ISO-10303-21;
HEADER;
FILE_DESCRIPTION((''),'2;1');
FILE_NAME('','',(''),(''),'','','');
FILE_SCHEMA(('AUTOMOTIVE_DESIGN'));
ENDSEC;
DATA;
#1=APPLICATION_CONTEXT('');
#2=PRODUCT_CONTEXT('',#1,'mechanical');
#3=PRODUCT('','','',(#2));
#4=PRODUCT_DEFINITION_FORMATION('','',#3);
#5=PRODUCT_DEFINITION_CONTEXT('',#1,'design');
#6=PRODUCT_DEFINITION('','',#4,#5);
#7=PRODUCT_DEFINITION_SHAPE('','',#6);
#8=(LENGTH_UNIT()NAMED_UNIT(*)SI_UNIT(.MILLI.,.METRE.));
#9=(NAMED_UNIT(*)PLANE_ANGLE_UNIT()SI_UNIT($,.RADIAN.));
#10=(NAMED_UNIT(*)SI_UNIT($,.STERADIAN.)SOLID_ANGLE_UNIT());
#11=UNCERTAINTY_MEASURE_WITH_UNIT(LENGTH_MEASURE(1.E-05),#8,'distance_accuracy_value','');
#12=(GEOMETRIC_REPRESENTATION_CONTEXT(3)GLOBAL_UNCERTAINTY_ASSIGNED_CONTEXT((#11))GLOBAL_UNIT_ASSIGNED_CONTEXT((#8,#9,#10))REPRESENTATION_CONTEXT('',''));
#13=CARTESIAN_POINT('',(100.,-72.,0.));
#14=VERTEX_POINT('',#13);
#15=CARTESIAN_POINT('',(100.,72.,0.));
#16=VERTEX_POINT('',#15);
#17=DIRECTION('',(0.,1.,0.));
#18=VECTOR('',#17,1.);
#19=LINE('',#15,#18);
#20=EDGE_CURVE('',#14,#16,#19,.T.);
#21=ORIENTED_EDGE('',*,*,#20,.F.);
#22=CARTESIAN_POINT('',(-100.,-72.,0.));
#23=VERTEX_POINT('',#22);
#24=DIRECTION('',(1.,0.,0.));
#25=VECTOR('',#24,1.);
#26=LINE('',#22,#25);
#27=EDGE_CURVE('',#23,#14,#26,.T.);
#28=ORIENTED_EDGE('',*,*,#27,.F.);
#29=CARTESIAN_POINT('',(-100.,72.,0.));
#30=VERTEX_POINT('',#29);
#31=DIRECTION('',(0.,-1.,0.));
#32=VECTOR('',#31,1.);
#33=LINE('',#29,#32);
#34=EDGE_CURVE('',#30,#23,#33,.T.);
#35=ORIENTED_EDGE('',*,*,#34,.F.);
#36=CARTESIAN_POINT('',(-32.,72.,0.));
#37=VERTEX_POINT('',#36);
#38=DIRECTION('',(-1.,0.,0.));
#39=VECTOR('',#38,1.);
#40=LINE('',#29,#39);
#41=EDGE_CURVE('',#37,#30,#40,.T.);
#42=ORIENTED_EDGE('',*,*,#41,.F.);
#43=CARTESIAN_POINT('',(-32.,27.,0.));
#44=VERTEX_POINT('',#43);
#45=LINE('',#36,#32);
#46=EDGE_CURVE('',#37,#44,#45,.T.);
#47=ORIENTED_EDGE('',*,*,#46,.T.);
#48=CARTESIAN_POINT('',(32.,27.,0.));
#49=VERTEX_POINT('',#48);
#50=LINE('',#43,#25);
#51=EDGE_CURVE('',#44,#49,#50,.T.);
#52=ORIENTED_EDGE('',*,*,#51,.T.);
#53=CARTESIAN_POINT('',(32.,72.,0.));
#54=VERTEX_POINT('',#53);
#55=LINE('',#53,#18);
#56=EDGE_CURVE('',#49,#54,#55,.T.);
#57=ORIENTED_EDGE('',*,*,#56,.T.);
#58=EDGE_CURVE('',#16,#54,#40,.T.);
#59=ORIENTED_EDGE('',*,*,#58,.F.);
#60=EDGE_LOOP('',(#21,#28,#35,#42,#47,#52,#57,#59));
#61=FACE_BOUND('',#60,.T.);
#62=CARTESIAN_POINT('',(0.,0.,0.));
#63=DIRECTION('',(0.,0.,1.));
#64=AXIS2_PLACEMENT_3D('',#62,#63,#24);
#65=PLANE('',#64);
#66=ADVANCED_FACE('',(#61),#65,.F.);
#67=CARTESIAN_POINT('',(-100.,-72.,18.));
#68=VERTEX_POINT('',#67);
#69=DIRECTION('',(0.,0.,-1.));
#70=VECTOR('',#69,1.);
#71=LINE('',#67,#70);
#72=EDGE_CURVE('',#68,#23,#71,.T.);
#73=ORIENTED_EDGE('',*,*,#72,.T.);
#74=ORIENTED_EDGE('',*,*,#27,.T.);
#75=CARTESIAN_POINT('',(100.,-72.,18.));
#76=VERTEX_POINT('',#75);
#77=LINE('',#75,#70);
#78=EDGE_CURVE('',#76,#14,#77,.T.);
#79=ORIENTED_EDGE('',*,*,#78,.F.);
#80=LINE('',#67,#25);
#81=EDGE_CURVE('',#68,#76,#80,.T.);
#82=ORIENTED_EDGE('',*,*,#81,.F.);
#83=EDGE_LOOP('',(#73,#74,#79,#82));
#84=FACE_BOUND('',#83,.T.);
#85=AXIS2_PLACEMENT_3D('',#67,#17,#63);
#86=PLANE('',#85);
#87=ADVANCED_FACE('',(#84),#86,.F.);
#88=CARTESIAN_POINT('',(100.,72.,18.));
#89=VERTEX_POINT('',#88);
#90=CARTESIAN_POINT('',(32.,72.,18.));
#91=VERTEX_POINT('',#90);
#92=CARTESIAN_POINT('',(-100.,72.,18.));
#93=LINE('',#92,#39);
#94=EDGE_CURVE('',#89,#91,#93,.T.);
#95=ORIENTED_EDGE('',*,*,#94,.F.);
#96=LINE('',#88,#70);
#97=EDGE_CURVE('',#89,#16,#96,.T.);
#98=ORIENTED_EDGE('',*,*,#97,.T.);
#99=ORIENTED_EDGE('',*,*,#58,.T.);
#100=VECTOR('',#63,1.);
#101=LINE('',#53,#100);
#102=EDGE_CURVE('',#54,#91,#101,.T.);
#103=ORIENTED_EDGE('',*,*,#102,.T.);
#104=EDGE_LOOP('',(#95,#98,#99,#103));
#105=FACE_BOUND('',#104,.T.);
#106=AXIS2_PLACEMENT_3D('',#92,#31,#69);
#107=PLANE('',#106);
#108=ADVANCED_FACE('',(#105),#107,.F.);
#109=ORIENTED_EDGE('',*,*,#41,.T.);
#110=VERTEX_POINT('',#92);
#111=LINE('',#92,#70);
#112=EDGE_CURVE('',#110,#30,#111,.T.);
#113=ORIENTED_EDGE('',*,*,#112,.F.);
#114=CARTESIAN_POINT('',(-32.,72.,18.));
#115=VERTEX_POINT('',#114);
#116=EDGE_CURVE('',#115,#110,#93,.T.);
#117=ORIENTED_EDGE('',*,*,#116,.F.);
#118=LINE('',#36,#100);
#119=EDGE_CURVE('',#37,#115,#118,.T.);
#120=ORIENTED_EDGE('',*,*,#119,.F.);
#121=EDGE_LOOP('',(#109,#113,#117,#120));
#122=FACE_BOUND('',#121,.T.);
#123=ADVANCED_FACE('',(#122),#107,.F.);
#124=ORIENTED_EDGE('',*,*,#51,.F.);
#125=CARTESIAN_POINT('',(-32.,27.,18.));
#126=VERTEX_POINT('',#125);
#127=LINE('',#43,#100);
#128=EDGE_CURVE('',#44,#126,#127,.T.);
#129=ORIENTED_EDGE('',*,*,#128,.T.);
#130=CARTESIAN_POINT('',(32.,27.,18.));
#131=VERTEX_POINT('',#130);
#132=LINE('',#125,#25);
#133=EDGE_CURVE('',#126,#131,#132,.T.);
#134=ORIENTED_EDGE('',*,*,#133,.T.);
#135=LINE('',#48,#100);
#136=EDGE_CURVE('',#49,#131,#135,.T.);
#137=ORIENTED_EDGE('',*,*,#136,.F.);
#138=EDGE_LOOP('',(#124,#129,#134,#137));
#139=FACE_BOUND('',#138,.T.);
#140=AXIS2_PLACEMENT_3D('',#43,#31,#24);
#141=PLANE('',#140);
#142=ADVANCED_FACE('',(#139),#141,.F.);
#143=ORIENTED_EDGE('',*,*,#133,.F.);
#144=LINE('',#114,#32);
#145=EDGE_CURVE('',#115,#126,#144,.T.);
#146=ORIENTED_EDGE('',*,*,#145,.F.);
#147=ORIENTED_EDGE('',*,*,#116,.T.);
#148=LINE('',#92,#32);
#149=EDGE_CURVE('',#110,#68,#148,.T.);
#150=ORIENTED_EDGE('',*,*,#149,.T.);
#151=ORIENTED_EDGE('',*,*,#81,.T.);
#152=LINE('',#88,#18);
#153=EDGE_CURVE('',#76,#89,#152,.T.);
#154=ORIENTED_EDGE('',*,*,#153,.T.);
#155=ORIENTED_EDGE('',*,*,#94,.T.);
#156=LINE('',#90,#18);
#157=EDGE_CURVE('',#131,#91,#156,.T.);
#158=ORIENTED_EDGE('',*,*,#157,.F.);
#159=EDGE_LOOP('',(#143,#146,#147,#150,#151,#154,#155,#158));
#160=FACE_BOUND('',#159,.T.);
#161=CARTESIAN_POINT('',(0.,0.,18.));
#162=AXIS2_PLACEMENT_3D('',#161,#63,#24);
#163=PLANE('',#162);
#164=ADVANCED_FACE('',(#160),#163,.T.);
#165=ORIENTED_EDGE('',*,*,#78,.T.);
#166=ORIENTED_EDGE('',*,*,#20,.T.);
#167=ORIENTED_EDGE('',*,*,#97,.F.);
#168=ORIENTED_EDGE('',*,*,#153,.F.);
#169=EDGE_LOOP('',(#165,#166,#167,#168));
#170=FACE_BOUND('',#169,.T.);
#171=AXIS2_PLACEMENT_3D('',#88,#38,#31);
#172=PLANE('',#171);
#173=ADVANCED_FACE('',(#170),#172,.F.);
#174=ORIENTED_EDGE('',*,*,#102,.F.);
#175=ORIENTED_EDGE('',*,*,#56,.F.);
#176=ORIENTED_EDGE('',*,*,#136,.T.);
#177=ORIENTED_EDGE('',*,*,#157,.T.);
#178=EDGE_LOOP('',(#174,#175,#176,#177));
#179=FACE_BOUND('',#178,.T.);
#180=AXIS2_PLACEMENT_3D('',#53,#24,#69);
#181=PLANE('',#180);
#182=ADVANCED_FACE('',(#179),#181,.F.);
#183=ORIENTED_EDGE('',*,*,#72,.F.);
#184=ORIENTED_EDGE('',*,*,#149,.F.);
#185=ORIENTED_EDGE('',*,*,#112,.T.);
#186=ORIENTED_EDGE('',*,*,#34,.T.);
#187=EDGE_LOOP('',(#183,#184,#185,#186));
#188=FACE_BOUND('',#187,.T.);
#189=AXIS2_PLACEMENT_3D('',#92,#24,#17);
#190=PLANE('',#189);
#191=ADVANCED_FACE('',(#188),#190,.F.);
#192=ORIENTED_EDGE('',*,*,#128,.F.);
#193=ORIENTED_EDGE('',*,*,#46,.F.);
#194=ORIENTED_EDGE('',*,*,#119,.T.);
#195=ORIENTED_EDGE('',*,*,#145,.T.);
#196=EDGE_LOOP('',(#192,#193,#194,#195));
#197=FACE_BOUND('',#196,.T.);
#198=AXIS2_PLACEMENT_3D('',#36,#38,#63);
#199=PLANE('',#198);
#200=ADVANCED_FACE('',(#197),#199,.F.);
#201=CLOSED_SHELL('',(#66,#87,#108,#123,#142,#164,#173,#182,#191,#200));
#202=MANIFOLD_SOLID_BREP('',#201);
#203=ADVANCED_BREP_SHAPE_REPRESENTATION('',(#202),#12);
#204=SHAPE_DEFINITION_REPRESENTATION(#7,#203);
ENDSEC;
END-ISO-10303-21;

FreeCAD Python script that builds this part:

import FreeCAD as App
import Part
import Sketcher
from FreeCAD import Vector
Q = App.Units.Quantity

doc = App.newDocument("Part")
body = doc.addObject("PartDesign::Body", "Body")

sketch1 = body.newObject("Sketcher::SketchObject", "Sketch")
sketch1.AttachmentSupport = (doc.getObject("XY_Plane"), [""])
sketch1.MapMode = "FlatFace"
sketch1.addGeometry([
    Part.LineSegment(Vector(-100, 72, 0), Vector(-100, -72, 0)),
    Part.LineSegment(Vector(-100, -72, 0), Vector(100, -72, 0)),
    Part.LineSegment(Vector(100, -72, 0), Vector(100, 72, 0)),
    Part.LineSegment(Vector(100, 72, 0), Vector(-100, 72, 0)),
], False)
sketch1.addConstraint([
    Sketcher.Constraint("Coincident", 0, 2, 1, 1),
    Sketcher.Constraint("Coincident", 1, 2, 2, 1),
    Sketcher.Constraint("Coincident", 2, 2, 3, 1),
    Sketcher.Constraint("Coincident", 3, 2, 0, 1),
    Sketcher.Constraint("Vertical", 0),
    Sketcher.Constraint("Horizontal", 1),
    Sketcher.Constraint("Vertical", 2),
    Sketcher.Constraint("Horizontal", 3),
    Sketcher.Constraint("Symmetric", 0, 2, 2, 2, -1, 1),
    Sketcher.Constraint("DistanceX", 1, 1, 1, 2, Q("200 mm")),
    Sketcher.Constraint("DistanceY", 0, 2, 0, 1, Q("144 mm")),
])
pad1 = body.newObject("PartDesign::Pad", "Pad")
pad1.Profile = sketch1
pad1.Length = 18

sketch2 = body.newObject("Sketcher::SketchObject", "Sketch001")
sketch2.AttachmentSupport = (doc.getObject("XY_Plane"), [""])
sketch2.MapMode = "FlatFace"
sketch2.AttachmentOffset = App.Placement(Vector(0, 0, 18), App.Rotation())
sketch2.addGeometry([
    Part.LineSegment(Vector(-32, 72, 0), Vector(-32, 27, 0)),
    Part.LineSegment(Vector(-32, 27, 0), Vector(32, 27, 0)),
    Part.LineSegment(Vector(32, 27, 0), Vector(32, 72, 0)),
    Part.LineSegment(Vector(32, 72, 0), Vector(-32, 72, 0)),
], False)
sketch2.addConstraint([
    Sketcher.Constraint("Coincident", 0, 2, 1, 1),
    Sketcher.Constraint("Coincident", 1, 2, 2, 1),
    Sketcher.Constraint("Coincident", 2, 2, 3, 1),
    Sketcher.Constraint("Coincident", 3, 2, 0, 1),
    Sketcher.Constraint("Vertical", 0),
    Sketcher.Constraint("Horizontal", 1),
    Sketcher.Constraint("Vertical", 2),
    Sketcher.Constraint("Horizontal", 3),
    Sketcher.Constraint("DistanceX", 1, 1, 1, 2, Q("64 mm")),
    Sketcher.Constraint("DistanceY", 0, 2, 0, 1, Q("45 mm")),
    Sketcher.Constraint("DistanceX", 0, 2, -1, 1, Q("32 mm")),
    Sketcher.Constraint("DistanceY", -1, 1, 0, 2, Q("27 mm")),
])
pocket1 = body.newObject("PartDesign::Pocket", "Pocket")
pocket1.Profile = sketch2
pocket1.Length = 18

doc.recompute()
